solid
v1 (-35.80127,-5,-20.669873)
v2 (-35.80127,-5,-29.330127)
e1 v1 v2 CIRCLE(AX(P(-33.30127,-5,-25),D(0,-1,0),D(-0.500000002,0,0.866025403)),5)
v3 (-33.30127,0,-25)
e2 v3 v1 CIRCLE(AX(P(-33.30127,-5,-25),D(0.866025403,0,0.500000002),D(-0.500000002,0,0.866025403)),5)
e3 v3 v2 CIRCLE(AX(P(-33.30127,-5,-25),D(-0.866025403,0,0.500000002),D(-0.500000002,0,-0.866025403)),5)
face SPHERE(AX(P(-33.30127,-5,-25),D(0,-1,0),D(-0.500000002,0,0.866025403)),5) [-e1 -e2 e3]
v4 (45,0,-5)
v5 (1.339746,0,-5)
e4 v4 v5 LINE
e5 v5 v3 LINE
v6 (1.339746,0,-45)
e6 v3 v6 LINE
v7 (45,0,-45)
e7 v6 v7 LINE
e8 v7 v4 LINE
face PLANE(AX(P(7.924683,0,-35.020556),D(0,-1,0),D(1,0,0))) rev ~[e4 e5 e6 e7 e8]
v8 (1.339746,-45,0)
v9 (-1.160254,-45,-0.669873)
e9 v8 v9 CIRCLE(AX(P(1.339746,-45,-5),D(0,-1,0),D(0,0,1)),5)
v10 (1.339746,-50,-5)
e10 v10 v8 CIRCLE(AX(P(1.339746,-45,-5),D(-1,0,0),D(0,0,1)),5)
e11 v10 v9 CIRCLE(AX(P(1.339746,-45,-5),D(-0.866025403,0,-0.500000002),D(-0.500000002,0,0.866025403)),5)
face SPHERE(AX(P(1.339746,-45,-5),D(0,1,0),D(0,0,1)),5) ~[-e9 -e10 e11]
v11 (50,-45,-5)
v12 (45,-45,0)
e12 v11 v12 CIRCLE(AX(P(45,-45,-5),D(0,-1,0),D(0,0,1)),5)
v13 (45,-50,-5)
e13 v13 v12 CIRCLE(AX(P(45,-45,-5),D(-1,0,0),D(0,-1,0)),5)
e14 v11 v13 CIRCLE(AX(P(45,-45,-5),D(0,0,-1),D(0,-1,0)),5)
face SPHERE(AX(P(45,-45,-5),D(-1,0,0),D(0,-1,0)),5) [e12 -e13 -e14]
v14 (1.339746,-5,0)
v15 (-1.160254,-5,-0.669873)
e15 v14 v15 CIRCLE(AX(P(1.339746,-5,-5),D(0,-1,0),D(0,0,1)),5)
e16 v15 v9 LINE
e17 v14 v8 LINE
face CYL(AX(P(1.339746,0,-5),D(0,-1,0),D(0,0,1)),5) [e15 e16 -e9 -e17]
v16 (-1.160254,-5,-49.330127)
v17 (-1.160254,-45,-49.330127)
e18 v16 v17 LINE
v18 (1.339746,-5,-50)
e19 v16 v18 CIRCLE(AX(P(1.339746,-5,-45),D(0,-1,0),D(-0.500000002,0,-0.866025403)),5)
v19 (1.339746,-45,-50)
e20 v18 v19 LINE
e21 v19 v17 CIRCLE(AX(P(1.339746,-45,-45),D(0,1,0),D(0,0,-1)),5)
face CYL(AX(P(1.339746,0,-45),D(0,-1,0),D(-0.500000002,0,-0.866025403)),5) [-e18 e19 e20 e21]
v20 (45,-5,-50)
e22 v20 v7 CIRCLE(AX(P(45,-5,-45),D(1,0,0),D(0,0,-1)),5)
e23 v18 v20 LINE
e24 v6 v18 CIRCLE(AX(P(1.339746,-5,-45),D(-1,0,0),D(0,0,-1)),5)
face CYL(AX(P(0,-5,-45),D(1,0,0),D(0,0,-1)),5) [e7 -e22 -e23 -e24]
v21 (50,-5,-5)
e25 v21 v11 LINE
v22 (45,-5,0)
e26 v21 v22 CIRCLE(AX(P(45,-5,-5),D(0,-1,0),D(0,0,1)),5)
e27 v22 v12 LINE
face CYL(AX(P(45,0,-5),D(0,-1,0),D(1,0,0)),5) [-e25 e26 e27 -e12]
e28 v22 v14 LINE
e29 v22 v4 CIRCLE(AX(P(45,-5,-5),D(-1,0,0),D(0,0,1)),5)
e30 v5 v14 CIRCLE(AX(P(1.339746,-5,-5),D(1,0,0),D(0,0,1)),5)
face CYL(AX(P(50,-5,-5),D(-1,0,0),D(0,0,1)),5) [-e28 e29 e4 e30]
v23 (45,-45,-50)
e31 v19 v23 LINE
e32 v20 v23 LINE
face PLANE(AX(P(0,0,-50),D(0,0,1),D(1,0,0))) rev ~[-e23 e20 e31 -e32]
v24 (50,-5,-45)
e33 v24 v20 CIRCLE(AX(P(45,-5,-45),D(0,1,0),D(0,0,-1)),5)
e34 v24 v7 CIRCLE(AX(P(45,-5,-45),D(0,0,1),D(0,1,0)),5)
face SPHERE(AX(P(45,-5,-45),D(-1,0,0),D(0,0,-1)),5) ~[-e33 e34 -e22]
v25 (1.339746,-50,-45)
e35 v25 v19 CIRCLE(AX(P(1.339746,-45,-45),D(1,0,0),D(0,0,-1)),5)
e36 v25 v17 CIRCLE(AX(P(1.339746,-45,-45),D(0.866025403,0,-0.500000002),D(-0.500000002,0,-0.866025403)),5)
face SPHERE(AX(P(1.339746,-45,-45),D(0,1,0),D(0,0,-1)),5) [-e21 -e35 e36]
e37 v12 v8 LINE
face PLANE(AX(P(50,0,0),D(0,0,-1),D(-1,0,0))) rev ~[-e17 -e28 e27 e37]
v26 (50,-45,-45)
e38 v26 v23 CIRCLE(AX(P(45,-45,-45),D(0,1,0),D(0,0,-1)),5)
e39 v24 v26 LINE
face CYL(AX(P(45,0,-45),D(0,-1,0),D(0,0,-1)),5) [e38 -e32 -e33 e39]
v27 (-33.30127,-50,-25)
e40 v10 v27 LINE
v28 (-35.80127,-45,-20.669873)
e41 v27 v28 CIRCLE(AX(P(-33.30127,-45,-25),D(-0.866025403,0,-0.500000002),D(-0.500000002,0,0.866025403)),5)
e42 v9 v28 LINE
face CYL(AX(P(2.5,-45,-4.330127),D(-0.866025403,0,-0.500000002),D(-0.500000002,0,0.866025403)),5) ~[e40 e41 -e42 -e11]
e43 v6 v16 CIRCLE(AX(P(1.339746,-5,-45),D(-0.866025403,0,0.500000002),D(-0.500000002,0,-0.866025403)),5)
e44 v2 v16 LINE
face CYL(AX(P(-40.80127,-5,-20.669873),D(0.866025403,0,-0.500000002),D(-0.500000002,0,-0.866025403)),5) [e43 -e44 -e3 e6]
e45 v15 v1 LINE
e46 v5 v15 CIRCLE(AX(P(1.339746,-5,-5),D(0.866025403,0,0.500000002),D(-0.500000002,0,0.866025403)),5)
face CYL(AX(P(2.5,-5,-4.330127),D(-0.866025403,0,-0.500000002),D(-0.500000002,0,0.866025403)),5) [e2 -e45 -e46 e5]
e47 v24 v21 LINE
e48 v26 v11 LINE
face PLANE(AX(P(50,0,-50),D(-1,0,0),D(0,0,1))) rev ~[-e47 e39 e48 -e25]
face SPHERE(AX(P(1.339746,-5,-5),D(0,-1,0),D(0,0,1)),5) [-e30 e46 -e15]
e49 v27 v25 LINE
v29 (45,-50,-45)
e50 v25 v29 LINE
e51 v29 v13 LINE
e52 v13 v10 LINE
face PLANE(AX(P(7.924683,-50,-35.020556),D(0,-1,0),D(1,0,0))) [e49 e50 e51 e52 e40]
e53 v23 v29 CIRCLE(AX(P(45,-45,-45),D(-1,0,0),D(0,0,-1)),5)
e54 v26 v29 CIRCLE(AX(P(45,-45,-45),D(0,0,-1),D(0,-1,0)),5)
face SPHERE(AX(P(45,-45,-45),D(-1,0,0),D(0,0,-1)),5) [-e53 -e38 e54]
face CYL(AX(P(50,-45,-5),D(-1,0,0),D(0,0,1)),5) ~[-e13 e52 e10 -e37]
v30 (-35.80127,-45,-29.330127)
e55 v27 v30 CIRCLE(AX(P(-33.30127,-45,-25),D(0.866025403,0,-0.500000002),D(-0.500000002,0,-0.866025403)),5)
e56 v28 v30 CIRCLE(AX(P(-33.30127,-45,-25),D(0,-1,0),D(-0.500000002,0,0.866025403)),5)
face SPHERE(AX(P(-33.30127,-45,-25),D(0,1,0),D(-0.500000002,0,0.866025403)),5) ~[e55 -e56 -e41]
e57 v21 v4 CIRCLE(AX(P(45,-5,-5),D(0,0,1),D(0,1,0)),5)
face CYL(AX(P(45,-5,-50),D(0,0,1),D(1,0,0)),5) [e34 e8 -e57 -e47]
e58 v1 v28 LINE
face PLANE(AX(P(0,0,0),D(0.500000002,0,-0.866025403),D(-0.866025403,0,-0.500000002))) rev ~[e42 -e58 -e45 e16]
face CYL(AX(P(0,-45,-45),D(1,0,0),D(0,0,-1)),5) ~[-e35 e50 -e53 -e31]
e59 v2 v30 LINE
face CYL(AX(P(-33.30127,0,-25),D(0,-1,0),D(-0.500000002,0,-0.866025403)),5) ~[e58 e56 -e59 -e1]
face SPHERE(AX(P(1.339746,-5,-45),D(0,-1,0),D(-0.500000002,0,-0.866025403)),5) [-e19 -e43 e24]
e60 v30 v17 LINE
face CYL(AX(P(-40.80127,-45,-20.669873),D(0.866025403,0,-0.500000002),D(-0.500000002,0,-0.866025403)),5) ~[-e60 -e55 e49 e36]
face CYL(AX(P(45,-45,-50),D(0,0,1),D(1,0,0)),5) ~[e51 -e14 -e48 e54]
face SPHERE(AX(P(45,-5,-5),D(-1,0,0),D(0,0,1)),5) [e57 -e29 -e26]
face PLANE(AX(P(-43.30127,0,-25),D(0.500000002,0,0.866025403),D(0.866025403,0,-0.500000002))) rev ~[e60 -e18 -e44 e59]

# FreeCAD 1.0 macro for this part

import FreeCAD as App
import Part
import Sketcher
Q = App.Units.Quantity


def add_polygon(sketch, points):
    """Adds a closed chain of lines whose ends are joined by coincident constraints."""
    first, n = sketch.GeometryCount, len(points)
    for a, b in zip(points, points[1:] + points[:1]):
        sketch.addGeometry(Part.LineSegment(App.Vector(*a, 0), App.Vector(*b, 0)), False)
    for i in range(n):
        sketch.addConstraint(Sketcher.Constraint("Coincident", first + i, 2, first + (i + 1) % n, 1))

doc = App.newDocument("Part")
params = doc.addObject("Spreadsheet::Sheet", "Params")
for row, (alias, value) in enumerate([
    ("sketch1_width", "50 mm"),
    ("pad1_length", "50 mm"),
    ("fillet_radius", "5 mm"),
], start=1):
    params.set(f"A{row}", alias)
    params.set(f"B{row}", "=" + value)
    params.setAlias(f"B{row}", alias)

body = doc.addObject("PartDesign::Body", "Body")

# Sketch on XZ plane
sketch1 = doc.addObject("Sketcher::SketchObject", "Sketch")
body.addObject(sketch1)
sketch1.AttachmentSupport = (doc.XZ_Plane, [""])
sketch1.MapMode = "FlatFace"
add_polygon(sketch1, [(-43, -25), (0, -50), (50, -50), (50, 0), (0, 0)])  # lines 0-4
sketch1.addConstraint([
    Sketcher.Constraint("Horizontal", 1),
    Sketcher.Constraint("Vertical", 2),
    Sketcher.Constraint("Horizontal", 3),
    Sketcher.Constraint("Coincident", 3, 2, -1, 1),
    Sketcher.Constraint("PointOnObject", 0, 2, -2),
    Sketcher.Constraint("Equal", 3, 2),
    Sketcher.Constraint("Equal", 0, 4),
    Sketcher.Constraint("DistanceX", 1, 1, 1, 2, 50.0),
    Sketcher.Constraint("Angle", 0, Q("-30 deg")),
])
sketch1.setExpression("Constraints[12]", "Params.sketch1_width")
pad1 = doc.addObject("PartDesign::Pad", "Pad")
body.addObject(pad1)
pad1.Profile = sketch1
pad1.setExpression("Length", "Params.pad1_length")
doc.recompute()

fillet = doc.addObject("PartDesign::Fillet", "Fillet")
body.addObject(fillet)
fillet.Base = (pad1, ["Edge1"])
fillet.UseAllEdges = True
fillet.setExpression("Radius", "Params.fillet_radius")

doc.recompute()
